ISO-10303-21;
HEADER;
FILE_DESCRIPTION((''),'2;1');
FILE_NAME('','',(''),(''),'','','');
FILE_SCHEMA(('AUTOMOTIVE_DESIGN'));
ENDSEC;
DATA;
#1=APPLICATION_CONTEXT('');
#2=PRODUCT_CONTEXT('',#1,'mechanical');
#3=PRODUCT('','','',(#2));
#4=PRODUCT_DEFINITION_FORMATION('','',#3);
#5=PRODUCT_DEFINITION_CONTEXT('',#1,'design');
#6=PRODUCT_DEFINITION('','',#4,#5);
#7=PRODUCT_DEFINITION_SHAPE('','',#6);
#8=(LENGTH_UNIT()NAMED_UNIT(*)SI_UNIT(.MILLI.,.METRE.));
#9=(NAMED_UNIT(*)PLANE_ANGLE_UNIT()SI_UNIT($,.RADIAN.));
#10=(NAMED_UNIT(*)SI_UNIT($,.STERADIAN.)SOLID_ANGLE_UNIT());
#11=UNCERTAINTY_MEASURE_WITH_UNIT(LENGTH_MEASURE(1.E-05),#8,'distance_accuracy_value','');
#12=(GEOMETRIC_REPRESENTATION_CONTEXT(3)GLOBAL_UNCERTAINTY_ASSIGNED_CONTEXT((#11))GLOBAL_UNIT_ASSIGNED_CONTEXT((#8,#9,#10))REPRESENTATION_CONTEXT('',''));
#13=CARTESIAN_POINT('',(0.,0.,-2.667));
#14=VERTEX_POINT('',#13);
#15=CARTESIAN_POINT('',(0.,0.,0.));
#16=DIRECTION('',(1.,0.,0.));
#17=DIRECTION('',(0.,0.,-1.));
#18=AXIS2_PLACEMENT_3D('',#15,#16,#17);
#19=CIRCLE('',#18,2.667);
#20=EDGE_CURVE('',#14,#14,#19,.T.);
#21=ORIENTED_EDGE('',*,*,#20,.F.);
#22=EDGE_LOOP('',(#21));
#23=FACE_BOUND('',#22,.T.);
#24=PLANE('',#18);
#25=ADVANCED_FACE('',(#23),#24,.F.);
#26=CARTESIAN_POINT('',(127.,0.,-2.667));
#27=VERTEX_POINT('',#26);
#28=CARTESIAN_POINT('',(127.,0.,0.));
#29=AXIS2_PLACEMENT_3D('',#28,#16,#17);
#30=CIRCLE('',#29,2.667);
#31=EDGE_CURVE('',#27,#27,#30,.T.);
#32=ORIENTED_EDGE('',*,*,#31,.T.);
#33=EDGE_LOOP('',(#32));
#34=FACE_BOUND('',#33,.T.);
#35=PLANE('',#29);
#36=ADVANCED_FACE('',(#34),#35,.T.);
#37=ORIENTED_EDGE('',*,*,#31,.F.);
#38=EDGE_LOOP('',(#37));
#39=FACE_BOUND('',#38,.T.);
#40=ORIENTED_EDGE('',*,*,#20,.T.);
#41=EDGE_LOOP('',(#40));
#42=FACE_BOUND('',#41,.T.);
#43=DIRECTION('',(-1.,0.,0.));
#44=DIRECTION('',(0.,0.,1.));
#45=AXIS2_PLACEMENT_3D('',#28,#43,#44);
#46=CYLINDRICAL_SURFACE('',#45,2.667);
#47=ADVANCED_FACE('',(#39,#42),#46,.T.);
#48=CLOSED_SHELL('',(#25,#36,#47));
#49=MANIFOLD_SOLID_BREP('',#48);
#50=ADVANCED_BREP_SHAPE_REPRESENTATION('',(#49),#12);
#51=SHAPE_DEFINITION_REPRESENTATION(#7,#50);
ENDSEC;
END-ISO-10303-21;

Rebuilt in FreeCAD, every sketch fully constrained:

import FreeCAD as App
import Part
import Sketcher

V = App.Vector
Q = App.Units.Quantity

doc = App.newDocument("Part")
body = doc.addObject("PartDesign::Body", "Body")

# Sketch on YZ plane
sketch1 = doc.addObject("Sketcher::SketchObject", "Sketch")
body.addObject(sketch1)
sketch1.AttachmentSupport = (doc.YZ_Plane, [""])
sketch1.MapMode = "FlatFace"
sketch1.addGeometry(Part.Circle(V(0, 0, 0), V(0, 0, 1), 2.7), False)
sketch1.addConstraint(Sketcher.Constraint("Coincident", 0, 3, -1, 1))
sketch1.addConstraint(Sketcher.Constraint("Diameter", 0, Q("0.21 in")))
pad1 = doc.addObject("PartDesign::Pad", "Pad")
body.addObject(pad1)
pad1.Profile = sketch1
pad1.Length = Q("5 in")

doc.recompute()
